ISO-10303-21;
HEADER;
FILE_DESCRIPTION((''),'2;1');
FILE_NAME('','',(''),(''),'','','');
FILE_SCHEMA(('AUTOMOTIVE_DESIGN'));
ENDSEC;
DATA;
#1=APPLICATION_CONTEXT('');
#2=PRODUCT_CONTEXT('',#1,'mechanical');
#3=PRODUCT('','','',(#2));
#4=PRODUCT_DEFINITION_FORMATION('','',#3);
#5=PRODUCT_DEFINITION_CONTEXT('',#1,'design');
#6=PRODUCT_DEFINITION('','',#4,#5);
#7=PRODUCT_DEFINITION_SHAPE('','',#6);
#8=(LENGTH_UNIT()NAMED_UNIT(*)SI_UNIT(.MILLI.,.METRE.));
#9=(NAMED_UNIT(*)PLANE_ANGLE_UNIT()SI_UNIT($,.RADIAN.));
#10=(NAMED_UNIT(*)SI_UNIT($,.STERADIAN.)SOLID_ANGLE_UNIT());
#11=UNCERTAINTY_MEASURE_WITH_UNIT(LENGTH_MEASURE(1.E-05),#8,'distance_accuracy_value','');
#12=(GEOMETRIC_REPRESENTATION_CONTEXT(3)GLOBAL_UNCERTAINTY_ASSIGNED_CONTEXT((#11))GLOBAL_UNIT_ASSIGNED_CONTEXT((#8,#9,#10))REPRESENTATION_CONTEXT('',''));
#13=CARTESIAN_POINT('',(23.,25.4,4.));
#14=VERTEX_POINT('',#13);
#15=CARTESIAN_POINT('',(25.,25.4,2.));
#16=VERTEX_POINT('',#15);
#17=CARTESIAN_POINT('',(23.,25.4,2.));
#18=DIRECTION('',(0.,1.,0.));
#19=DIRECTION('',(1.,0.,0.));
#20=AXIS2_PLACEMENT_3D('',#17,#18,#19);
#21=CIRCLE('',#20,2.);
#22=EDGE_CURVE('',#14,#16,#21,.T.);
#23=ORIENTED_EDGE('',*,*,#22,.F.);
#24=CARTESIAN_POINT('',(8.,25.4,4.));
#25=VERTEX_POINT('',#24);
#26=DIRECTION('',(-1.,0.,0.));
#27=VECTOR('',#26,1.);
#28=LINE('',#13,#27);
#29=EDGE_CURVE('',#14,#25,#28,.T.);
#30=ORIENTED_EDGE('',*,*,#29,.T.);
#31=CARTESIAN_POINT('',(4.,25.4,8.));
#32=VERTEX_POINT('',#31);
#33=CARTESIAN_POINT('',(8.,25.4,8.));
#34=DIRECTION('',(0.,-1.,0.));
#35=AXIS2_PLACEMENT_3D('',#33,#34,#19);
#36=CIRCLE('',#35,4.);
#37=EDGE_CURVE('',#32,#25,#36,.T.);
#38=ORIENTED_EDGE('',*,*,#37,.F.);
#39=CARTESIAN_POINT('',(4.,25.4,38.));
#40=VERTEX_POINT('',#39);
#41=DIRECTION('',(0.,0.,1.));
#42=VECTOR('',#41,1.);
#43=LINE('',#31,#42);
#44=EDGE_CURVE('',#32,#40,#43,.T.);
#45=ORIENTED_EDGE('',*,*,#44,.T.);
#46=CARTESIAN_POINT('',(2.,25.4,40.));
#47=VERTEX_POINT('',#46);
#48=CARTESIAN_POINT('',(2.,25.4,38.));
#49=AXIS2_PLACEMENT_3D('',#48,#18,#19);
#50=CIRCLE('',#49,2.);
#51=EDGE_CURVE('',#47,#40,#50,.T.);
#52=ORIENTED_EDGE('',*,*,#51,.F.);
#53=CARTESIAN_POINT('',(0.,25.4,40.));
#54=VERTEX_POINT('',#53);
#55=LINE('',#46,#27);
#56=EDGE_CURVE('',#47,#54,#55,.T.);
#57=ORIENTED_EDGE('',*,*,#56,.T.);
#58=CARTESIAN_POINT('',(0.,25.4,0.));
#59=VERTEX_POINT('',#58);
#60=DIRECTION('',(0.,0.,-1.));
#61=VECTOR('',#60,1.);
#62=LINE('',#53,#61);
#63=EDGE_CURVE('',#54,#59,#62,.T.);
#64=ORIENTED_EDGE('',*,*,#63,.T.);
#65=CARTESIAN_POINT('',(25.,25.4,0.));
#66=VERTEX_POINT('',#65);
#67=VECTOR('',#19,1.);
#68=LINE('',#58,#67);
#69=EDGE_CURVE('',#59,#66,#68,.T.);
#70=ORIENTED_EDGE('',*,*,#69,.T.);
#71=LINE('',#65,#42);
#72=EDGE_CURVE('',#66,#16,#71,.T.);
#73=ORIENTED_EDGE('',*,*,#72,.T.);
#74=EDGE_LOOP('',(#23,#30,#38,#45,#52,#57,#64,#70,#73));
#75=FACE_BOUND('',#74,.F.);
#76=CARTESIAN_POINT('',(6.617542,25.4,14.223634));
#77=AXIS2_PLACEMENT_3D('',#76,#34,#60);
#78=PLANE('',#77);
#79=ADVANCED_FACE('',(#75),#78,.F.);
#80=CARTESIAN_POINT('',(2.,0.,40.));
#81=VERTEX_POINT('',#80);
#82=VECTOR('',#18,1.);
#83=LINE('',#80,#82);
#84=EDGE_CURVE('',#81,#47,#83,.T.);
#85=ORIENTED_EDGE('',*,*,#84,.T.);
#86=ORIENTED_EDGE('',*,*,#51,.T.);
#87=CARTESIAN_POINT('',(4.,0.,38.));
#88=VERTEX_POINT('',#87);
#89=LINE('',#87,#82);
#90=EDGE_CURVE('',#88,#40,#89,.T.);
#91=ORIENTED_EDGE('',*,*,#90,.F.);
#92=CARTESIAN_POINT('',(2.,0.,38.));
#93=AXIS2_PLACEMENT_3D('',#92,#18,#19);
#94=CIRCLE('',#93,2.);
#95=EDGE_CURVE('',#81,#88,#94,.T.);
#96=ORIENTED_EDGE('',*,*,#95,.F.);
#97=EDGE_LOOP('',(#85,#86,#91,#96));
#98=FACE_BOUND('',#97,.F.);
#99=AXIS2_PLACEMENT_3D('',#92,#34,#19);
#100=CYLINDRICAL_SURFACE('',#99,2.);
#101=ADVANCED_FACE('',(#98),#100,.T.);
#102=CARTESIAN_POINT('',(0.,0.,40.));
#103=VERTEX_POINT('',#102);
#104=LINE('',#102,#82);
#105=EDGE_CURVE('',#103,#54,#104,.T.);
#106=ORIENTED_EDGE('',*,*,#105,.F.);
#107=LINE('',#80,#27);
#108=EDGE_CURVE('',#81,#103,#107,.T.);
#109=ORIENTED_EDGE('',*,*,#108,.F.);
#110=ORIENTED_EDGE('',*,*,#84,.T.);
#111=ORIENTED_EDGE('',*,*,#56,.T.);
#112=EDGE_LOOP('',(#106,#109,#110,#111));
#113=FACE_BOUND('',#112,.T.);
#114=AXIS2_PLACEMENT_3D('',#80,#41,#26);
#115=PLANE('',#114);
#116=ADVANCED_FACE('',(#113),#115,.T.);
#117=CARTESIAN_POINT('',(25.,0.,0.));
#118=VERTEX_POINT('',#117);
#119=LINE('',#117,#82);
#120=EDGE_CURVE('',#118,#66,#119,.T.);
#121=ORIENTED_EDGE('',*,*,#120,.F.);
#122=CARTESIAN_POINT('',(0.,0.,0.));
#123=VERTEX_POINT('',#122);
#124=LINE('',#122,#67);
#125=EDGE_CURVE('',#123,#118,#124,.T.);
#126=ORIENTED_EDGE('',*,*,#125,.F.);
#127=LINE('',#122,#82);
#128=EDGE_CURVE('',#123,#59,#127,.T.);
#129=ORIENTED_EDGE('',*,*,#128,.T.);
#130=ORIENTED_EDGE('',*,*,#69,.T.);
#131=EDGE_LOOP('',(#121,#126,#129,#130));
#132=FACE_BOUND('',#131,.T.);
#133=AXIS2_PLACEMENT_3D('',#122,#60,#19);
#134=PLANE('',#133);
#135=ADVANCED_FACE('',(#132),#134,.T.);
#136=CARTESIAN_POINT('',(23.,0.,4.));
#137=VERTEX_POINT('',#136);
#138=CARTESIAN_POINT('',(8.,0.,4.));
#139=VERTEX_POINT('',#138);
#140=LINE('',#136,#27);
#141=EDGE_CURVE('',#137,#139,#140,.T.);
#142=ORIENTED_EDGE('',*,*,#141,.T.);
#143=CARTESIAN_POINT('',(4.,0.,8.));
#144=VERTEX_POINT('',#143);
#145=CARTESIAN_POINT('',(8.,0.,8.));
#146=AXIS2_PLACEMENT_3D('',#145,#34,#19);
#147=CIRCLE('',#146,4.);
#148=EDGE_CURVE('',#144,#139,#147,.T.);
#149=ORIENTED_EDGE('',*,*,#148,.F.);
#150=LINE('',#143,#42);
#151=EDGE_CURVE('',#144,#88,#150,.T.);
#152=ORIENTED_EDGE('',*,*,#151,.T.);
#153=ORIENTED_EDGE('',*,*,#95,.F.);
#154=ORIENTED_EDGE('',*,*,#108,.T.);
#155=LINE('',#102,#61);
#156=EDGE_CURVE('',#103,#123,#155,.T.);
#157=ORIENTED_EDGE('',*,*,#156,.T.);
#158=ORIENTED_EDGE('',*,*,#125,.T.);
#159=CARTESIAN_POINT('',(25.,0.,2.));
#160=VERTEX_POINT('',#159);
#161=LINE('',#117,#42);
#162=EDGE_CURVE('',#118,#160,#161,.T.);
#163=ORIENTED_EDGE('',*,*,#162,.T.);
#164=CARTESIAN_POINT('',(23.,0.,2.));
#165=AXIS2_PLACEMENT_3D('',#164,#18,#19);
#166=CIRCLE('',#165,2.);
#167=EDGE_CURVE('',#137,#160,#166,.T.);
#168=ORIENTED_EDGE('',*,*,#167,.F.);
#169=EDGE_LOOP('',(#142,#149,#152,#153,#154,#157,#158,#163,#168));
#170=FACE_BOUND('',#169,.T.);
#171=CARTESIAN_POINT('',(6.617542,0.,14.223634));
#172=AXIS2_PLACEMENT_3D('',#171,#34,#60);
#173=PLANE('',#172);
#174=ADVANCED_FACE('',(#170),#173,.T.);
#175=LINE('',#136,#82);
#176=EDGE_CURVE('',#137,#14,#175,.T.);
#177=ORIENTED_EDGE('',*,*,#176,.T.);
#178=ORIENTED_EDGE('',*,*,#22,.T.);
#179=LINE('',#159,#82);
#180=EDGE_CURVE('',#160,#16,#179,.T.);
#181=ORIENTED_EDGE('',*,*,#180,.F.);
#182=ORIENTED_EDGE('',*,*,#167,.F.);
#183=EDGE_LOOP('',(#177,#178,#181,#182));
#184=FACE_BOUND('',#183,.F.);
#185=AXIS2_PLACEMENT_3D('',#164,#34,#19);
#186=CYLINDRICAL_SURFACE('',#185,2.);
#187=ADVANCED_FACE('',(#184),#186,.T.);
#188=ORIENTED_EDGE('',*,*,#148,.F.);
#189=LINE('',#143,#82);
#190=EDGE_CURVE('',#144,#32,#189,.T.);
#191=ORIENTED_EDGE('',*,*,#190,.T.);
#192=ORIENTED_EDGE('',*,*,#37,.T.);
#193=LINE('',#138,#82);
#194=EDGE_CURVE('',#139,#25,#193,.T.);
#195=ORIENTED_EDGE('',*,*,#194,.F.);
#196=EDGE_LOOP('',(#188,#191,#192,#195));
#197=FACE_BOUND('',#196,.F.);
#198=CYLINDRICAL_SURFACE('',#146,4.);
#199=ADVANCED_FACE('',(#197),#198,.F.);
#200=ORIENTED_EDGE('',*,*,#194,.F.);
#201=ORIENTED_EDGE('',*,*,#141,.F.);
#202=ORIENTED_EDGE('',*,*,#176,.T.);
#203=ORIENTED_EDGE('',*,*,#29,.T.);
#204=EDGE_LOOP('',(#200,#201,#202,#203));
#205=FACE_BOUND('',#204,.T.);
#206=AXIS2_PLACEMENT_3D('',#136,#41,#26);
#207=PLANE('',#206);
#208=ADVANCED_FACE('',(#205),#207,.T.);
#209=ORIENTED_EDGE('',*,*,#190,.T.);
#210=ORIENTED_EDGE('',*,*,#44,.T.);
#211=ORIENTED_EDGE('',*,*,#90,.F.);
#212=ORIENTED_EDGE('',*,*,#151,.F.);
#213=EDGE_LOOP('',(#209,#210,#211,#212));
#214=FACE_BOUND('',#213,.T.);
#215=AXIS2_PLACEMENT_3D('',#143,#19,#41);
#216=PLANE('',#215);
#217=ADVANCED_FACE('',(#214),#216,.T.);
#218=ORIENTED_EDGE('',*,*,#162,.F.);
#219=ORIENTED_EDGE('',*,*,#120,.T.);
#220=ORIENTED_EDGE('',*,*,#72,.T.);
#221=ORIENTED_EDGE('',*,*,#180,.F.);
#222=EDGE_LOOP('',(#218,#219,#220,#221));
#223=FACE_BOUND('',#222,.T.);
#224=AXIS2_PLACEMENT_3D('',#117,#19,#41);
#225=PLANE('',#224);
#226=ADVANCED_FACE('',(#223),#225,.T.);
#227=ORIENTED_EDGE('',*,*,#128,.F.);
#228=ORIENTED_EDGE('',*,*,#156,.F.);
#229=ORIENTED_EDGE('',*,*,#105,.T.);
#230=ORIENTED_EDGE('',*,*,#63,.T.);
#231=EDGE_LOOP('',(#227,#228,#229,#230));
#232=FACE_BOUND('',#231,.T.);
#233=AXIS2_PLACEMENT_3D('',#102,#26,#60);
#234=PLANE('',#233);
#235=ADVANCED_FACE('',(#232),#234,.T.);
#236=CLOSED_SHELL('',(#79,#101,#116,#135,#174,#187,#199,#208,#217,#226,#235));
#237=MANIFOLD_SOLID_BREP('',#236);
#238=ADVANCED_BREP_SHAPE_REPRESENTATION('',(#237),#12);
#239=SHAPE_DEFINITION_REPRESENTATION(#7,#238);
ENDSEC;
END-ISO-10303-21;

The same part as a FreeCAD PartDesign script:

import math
import FreeCAD as App
import Part
import Sketcher
from FreeCAD import Vector
Q = App.Units.Quantity

doc = App.newDocument("Part")
body = doc.addObject("PartDesign::Body", "Body")

# Sketch on XZ plane
sketch1 = body.newObject("Sketcher::SketchObject", "Sketch")
sketch1.AttachmentSupport = (doc.getObject("XZ_Plane"), [""])
sketch1.MapMode = "FlatFace"
sketch1.addGeometry([
    Part.LineSegment(Vector(0, 0, 0), Vector(25, 0, 0)),  # 0
    Part.LineSegment(Vector(25, 0, 0), Vector(25, 2, 0)),  # 1
    Part.ArcOfCircle(Part.Circle(Vector(23, 2, 0), Vector(0, 0, 1), 2), math.radians(0), math.radians(90)),  # 2
    Part.LineSegment(Vector(23, 4, 0), Vector(8, 4, 0)),  # 3
    Part.ArcOfCircle(Part.Circle(Vector(8, 8, 0), Vector(0, 0, 1), 4), math.radians(180), math.radians(270)),  # 4
    Part.LineSegment(Vector(4, 8, 0), Vector(4, 38, 0)),  # 5
    Part.ArcOfCircle(Part.Circle(Vector(2, 38, 0), Vector(0, 0, 1), 2), math.radians(0), math.radians(90)),  # 6
    Part.LineSegment(Vector(2, 40, 0), Vector(0, 40, 0)),  # 7
    Part.LineSegment(Vector(0, 40, 0), Vector(0, 0, 0)),  # 8
], False)
sketch1.addConstraint([
    Sketcher.Constraint("Coincident", 0, 2, 1, 1),
    Sketcher.Constraint("Tangent", 1, 2, 2, 1),
    Sketcher.Constraint("Tangent", 2, 2, 3, 1),
    Sketcher.Constraint("Tangent", 3, 2, 4, 2),
    Sketcher.Constraint("Tangent", 4, 1, 5, 1),
    Sketcher.Constraint("Tangent", 5, 2, 6, 1),
    Sketcher.Constraint("Tangent", 6, 2, 7, 1),
    Sketcher.Constraint("Coincident", 7, 2, 8, 1),
    Sketcher.Constraint("Coincident", 8, 2, 0, 1),
    Sketcher.Constraint("Horizontal", 0),
    Sketcher.Constraint("Vertical", 1),
    Sketcher.Constraint("Horizontal", 3),
    Sketcher.Constraint("Vertical", 5),
    Sketcher.Constraint("Horizontal", 7),
    Sketcher.Constraint("Vertical", 8),
    Sketcher.Constraint("Coincident", 8, 2, -1, 1),
    Sketcher.Constraint("Equal", 2, 6),
    Sketcher.Constraint("Equal", 7, 1),
    Sketcher.Constraint("Radius", 2, Q("2 mm")),
    Sketcher.Constraint("Radius", 4, Q("4 mm")),
    Sketcher.Constraint("DistanceX", 0, 1, 0, 2, Q("25 mm")),
    Sketcher.Constraint("DistanceX", 3, 2, 3, 1, Q("15 mm")),
    Sketcher.Constraint("DistanceY", 5, 1, 5, 2, Q("30 mm")),
])
pad1 = body.newObject("PartDesign::Pad", "Pad")
pad1.Profile = sketch1
pad1.Length = 25.4
pad1.Reversed = True

doc.recompute()
